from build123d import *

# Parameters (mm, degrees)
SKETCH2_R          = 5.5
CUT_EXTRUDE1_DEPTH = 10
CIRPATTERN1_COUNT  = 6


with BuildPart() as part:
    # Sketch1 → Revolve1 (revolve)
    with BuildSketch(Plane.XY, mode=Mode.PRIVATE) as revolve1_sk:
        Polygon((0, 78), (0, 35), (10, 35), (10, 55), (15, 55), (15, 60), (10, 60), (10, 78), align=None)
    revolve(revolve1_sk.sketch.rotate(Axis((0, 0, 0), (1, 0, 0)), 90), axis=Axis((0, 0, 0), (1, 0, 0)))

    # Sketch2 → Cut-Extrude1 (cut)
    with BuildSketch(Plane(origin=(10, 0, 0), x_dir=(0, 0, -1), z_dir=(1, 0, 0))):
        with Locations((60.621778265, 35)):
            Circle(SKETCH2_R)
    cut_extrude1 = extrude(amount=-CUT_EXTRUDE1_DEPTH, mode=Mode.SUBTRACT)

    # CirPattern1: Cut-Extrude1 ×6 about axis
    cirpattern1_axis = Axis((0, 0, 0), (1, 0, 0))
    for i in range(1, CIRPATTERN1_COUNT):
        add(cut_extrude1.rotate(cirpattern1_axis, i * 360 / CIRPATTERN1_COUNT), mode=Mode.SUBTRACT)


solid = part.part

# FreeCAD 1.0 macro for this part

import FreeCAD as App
import Part
import Sketcher
from FreeCAD import Vector
Q = App.Units.Quantity


def add_polygon(sketch, points):
    """Adds a closed chain of lines whose ends are joined by coincident constraints."""
    first, n = sketch.GeometryCount, len(points)
    for a, b in zip(points, points[1:] + points[:1]):
        sketch.addGeometry(Part.LineSegment(App.Vector(*a, 0), App.Vector(*b, 0)), False)
    for i in range(n):
        sketch.addConstraint(Sketcher.Constraint("Coincident", first + i, 2, first + (i + 1) % n, 1))

doc = App.newDocument("Part")
body = doc.addObject("PartDesign::Body", "Body")

sketch1 = body.newObject("Sketcher::SketchObject", "Sketch")
sketch1.AttachmentSupport = (doc.getObject("XY_Plane"), [""])
sketch1.MapMode = "FlatFace"
add_polygon(sketch1, [(0, 78), (0, 35), (10, 35), (10, 55), (15, 55), (15, 60), (10, 60), (10, 78)])
sketch1.addConstraint([
    Sketcher.Constraint("Vertical", 0),
    Sketcher.Constraint("Horizontal", 1),
    Sketcher.Constraint("Vertical", 2),
    Sketcher.Constraint("Horizontal", 3),
    Sketcher.Constraint("Vertical", 4),
    Sketcher.Constraint("Horizontal", 5),
    Sketcher.Constraint("Vertical", 6),
    Sketcher.Constraint("Horizontal", 7),
    Sketcher.Constraint("PointOnObject", 0, 2, -2),
    Sketcher.Constraint("Vertical", 2, 2, 5, 2),
    Sketcher.Constraint("Equal", 5, 4),
    Sketcher.Constraint("DistanceX", 1, 1, 1, 2, Q("10 mm")),
    Sketcher.Constraint("DistanceX", 3, 1, 3, 2, Q("5 mm")),
    Sketcher.Constraint("DistanceY", 0, 2, 0, 1, Q("43 mm")),
    Sketcher.Constraint("DistanceY", 2, 1, 2, 2, Q("20 mm")),
    Sketcher.Constraint("DistanceY", -1, 1, 0, 2, Q("35 mm")),
])
revolution = body.newObject("PartDesign::Revolution", "Revolution")
revolution.Profile = sketch1
revolution.ReferenceAxis = (sketch1, ["H_Axis"])
revolution.Angle = 360

sketch2 = body.newObject("Sketcher::SketchObject", "Sketch001")
sketch2.AttachmentSupport = (doc.getObject("YZ_Plane"), [""])
sketch2.MapMode = "FlatFace"
sketch2.AttachmentOffset = App.Placement(Vector(0, 0, 10), App.Rotation())
sketch2.addGeometry(Part.Circle(Vector(35, -61, 0), Vector(0, 0, 1), 6), False)
sketch2.addConstraint([
    Sketcher.Constraint("Diameter", 0, Q("11 mm")),
    Sketcher.Constraint("DistanceX", -1, 1, 0, 3, Q("35 mm")),
    Sketcher.Constraint("DistanceY", 0, 3, -1, 1, Q("60.621778 mm")),
])
pocket1 = body.newObject("PartDesign::Pocket", "Pocket")
pocket1.Profile = sketch2
pocket1.Length = 10
doc.recompute()

polarpattern = body.newObject("PartDesign::PolarPattern", "PolarPattern")
polarpattern.Originals = [pocket1]
polarpattern.Axis = (doc.getObject("X_Axis"), [""])
polarpattern.Angle = 360
polarpattern.Occurrences = 6
body.Tip = polarpattern

doc.recompute()
